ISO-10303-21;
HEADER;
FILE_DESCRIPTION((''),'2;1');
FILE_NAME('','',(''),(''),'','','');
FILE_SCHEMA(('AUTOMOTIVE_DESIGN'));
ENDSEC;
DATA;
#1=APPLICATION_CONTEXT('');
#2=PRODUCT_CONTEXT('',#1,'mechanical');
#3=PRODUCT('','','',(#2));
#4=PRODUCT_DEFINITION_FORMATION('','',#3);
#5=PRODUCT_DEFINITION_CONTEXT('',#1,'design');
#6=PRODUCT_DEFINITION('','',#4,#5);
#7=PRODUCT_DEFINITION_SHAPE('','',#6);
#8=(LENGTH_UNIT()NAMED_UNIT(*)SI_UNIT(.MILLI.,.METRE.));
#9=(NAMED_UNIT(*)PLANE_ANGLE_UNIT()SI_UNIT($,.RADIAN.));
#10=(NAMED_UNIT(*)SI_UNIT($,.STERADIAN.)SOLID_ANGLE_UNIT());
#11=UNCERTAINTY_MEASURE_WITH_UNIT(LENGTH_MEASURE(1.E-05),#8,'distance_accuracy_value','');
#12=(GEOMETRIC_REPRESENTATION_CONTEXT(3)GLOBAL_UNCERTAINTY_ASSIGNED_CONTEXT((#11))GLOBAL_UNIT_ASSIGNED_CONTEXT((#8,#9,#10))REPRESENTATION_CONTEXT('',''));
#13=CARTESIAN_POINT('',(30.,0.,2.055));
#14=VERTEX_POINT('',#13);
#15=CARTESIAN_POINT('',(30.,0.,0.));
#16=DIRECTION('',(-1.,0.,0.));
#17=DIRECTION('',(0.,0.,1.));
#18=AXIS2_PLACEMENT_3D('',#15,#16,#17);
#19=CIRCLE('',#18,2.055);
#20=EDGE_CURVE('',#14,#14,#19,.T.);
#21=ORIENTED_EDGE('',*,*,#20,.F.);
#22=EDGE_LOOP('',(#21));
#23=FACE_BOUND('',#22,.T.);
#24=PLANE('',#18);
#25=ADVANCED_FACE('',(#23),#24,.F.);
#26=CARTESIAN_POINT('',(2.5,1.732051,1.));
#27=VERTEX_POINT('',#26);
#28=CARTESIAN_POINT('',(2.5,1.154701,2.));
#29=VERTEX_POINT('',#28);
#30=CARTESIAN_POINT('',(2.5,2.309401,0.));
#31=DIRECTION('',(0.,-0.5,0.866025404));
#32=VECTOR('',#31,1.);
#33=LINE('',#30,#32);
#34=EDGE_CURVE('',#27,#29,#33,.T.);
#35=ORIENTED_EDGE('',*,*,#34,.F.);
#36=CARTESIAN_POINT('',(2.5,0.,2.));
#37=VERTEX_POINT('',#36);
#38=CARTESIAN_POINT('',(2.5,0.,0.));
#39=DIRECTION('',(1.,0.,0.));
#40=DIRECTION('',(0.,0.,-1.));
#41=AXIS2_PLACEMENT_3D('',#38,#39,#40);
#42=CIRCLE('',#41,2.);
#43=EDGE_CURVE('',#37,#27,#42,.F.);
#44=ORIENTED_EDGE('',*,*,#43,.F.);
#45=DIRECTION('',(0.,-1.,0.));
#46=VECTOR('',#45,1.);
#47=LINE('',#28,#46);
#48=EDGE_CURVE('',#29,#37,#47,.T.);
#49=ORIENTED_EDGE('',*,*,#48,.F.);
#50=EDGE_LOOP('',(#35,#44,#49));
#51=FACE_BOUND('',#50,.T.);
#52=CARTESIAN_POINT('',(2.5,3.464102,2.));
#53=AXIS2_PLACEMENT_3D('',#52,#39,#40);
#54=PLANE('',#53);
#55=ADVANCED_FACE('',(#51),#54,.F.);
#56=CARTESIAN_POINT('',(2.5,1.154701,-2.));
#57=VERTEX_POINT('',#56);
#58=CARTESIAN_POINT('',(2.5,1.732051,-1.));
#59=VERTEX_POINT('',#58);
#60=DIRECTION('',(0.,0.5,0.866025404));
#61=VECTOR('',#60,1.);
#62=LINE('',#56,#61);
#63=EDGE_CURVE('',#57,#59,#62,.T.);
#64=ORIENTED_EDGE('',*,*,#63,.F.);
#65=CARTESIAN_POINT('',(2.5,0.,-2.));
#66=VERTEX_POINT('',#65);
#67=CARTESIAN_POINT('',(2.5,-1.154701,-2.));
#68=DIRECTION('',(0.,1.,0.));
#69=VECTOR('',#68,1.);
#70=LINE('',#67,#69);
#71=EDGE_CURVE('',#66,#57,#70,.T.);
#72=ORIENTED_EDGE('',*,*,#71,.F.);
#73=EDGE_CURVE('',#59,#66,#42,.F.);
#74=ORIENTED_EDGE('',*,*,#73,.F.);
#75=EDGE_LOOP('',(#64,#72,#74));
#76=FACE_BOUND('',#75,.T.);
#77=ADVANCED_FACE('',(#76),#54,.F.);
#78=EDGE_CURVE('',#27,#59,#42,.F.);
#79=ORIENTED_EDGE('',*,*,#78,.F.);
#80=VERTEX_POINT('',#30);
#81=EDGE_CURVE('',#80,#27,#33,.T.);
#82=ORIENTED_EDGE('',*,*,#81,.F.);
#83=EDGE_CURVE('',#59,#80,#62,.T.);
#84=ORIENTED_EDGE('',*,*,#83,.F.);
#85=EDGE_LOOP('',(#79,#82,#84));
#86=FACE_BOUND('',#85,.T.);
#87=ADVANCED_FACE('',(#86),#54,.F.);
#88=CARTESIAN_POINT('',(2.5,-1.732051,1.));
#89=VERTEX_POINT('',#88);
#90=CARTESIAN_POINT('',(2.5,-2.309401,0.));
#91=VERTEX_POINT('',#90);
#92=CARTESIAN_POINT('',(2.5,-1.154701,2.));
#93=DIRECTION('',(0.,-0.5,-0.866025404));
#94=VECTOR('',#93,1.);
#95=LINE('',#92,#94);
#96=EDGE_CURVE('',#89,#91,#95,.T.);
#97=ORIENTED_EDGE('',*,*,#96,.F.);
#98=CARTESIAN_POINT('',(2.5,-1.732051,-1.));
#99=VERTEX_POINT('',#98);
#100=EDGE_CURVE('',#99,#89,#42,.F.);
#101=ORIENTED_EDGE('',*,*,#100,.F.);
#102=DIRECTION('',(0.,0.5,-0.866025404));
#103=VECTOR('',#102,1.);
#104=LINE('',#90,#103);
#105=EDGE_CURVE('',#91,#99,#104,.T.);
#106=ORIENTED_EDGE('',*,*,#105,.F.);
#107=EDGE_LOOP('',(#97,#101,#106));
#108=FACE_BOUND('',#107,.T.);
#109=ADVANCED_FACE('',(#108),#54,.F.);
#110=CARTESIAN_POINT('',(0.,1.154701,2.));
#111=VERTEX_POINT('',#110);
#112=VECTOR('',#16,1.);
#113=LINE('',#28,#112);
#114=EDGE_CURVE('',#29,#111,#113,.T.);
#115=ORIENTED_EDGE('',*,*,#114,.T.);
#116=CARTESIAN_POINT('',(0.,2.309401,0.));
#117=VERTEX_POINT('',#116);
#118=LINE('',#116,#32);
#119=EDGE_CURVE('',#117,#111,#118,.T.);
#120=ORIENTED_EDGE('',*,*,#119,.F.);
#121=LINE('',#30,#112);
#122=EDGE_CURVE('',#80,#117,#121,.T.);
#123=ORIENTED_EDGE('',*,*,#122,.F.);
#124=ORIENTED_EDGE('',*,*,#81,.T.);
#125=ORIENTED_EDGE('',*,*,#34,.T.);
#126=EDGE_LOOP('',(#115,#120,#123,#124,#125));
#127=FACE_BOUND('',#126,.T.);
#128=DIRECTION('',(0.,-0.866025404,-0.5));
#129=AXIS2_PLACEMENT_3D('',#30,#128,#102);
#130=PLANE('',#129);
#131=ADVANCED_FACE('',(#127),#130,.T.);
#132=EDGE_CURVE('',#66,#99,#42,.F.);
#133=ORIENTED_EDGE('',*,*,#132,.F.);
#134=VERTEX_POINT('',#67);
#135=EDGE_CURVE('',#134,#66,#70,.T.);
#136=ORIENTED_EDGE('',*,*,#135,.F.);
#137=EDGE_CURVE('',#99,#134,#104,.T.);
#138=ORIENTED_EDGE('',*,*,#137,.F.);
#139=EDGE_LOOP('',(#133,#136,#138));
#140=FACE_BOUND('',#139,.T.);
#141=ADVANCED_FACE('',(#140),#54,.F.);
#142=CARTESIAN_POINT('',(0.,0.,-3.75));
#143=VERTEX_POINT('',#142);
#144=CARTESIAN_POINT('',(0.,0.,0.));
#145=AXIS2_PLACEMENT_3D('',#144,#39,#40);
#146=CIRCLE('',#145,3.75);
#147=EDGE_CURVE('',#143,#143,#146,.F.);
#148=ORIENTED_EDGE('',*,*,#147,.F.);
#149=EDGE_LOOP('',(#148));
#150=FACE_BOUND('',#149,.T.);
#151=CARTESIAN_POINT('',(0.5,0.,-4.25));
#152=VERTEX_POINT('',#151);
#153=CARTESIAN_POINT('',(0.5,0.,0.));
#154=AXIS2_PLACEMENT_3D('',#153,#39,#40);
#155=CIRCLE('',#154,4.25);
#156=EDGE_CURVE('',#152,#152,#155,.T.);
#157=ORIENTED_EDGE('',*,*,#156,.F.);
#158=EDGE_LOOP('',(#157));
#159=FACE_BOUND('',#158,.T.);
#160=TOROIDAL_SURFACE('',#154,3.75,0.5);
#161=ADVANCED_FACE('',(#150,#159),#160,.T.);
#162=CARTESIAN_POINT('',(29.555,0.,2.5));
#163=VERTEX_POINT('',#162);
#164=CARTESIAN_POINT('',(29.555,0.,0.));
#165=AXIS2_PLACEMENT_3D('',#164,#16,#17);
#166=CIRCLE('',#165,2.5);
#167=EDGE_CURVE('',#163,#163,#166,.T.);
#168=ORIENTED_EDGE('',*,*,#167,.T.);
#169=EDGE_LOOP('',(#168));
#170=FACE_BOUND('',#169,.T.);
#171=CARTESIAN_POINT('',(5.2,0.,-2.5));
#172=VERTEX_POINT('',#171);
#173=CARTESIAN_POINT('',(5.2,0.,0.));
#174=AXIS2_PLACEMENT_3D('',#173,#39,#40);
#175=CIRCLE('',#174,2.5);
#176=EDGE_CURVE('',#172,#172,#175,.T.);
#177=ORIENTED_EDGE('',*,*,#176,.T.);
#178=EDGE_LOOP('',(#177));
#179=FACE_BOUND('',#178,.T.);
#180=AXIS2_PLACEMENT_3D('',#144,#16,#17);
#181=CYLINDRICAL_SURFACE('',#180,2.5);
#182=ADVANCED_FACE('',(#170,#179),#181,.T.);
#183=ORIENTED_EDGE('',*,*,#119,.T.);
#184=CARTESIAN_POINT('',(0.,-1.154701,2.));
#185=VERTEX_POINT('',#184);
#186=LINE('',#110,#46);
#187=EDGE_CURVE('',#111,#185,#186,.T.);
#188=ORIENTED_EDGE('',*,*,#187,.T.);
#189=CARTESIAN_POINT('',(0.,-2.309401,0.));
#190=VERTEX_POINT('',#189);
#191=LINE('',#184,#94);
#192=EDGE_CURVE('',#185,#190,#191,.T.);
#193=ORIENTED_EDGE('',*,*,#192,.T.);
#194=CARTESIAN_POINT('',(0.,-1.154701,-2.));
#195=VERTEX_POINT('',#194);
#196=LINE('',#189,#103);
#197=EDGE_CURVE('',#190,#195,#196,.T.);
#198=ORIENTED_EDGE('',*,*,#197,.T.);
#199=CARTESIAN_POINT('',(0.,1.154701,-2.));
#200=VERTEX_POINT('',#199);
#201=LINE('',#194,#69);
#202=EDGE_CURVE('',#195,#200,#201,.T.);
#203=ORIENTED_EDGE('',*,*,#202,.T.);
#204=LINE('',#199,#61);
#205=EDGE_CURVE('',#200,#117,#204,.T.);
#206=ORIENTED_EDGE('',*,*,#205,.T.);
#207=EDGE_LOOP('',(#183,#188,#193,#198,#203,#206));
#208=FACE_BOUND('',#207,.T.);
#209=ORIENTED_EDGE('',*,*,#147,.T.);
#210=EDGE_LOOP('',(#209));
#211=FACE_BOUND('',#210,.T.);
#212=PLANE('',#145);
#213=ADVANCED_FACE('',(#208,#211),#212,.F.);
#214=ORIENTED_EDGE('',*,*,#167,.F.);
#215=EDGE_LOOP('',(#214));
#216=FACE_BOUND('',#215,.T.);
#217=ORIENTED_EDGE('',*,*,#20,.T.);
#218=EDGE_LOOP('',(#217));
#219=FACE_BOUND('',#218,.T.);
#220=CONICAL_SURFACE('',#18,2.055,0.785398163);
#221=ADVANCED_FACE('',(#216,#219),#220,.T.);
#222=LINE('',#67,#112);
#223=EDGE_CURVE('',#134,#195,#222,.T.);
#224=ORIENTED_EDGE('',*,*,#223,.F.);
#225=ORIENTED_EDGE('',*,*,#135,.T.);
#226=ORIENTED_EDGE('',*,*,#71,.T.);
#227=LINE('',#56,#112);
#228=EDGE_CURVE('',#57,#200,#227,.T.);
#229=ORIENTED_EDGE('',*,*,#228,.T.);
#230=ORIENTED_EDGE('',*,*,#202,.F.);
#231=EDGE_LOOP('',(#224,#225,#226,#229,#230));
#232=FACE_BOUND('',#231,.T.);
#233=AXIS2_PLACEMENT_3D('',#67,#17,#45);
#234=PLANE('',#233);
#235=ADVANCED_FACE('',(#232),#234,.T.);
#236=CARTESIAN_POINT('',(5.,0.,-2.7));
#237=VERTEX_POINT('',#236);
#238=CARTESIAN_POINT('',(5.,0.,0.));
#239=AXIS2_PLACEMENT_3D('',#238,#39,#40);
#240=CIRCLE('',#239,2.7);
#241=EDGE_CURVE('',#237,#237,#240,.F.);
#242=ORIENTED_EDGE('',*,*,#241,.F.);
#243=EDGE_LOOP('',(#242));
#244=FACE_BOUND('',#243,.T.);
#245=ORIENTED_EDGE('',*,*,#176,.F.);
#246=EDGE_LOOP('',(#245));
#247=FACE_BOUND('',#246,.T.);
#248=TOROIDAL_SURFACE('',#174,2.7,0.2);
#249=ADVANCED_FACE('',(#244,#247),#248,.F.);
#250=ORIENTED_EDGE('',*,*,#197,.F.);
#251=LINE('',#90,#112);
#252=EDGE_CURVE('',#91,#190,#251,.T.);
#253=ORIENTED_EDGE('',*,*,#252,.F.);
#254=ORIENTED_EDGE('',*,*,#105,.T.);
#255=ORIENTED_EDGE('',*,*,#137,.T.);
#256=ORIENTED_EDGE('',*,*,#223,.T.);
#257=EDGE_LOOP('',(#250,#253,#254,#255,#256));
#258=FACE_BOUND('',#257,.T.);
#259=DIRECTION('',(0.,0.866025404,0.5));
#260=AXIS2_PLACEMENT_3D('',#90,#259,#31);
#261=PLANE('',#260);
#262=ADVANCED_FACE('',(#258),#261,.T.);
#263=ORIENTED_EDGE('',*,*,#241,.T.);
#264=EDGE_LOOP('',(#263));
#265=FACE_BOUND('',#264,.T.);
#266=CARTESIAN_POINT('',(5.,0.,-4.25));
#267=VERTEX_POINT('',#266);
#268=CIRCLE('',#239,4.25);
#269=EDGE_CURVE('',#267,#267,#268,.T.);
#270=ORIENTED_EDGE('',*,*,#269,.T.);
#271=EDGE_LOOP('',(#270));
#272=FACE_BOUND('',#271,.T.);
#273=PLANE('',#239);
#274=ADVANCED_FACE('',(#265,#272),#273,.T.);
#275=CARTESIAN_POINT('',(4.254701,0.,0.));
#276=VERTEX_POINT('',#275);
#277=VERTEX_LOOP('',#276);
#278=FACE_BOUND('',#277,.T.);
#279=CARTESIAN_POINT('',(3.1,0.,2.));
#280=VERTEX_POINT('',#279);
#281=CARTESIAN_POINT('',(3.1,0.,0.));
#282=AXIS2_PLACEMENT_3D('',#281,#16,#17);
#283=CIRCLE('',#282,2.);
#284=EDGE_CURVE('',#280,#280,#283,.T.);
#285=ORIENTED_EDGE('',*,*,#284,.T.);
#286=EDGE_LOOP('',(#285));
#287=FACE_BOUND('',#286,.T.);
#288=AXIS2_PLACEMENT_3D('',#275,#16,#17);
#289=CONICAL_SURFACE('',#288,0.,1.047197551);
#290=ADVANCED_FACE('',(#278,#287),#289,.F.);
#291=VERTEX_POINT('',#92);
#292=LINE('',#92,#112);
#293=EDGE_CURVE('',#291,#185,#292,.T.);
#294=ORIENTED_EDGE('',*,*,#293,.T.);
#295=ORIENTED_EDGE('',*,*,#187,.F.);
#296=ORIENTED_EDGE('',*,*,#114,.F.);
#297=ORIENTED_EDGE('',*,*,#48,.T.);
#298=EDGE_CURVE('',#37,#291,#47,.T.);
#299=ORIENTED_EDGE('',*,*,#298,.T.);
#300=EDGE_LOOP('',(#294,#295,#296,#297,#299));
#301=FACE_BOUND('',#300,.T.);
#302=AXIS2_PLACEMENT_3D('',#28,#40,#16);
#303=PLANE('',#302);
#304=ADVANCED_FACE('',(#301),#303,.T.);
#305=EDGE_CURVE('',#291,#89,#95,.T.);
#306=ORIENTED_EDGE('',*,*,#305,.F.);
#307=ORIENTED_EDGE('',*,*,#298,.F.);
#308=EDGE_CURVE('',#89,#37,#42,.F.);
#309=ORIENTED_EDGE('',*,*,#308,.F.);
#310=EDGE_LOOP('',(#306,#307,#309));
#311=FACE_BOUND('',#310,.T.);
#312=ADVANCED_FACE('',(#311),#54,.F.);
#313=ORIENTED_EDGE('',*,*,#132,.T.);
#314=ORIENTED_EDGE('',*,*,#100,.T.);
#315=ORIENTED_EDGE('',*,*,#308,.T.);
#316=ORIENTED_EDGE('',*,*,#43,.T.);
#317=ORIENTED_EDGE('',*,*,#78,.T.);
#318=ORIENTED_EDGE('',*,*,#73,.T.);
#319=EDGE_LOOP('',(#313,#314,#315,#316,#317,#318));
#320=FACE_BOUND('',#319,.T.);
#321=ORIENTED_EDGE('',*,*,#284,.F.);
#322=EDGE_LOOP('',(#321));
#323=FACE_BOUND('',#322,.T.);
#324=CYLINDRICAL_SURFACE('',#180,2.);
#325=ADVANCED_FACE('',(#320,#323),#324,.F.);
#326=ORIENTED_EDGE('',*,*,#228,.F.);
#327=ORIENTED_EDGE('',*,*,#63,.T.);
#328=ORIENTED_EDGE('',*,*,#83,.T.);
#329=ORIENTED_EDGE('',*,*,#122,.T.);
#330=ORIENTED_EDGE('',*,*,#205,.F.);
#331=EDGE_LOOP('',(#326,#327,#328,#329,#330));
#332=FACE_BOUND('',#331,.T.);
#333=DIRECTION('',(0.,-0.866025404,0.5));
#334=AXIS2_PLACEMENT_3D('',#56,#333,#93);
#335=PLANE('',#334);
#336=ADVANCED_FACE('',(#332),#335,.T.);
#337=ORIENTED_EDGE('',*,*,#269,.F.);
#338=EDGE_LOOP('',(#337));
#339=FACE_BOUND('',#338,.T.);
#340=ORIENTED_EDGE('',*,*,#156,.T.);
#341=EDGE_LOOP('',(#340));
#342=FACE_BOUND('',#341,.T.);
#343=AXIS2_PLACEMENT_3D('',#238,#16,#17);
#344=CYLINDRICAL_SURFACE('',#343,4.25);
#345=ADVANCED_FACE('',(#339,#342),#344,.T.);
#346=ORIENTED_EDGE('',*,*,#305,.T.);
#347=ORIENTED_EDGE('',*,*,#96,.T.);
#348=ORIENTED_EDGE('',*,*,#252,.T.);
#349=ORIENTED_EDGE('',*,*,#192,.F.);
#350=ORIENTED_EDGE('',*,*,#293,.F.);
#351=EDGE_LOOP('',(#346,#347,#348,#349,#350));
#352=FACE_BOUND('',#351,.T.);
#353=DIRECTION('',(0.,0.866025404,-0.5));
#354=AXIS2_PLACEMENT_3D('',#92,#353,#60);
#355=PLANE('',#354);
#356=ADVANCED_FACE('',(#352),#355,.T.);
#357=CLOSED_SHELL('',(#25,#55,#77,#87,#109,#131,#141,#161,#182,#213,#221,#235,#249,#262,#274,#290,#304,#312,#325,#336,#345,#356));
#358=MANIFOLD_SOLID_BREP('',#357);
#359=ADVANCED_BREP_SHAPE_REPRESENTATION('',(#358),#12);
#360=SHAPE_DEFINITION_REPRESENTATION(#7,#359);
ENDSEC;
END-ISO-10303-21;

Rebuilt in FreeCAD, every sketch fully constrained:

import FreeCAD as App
import Part
import Sketcher
Q = App.Units.Quantity


def edges_at(feature, points):
    """Names of the edges that pass closest to the given points."""
    edges = feature.Shape.Edges
    near = lambda p: min(range(len(edges)), key=lambda i: edges[i].distToShape(Part.Vertex(*p))[0])
    return sorted({f"Edge{near(p) + 1}" for p in points})

doc = App.newDocument("Part")
body = doc.addObject("PartDesign::Body", "Body")

# Sketch on YZ plane
sketch1 = body.newObject("Sketcher::SketchObject", "Sketch")
sketch1.AttachmentSupport = (doc.getObject("YZ_Plane"), [""])
sketch1.MapMode = "FlatFace"
sketch1.addGeometry(Part.Circle(App.Vector(0, 0, 0), App.Vector(0, 0, 1), 4.2), False)
sketch1.addConstraint([
    Sketcher.Constraint("Coincident", 0, 3, -1, 1),
    Sketcher.Constraint("Diameter", 0, Q("8.5 mm")),
])
pad1 = body.newObject("PartDesign::Pad", "Pad")
pad1.Profile = sketch1
pad1.Length = 5

# Sketch on XY plane
sketch2 = body.newObject("Sketcher::SketchObject", "Sketch001")
sketch2.AttachmentSupport = (doc.getObject("XY_Plane"), [""])
sketch2.MapMode = "FlatFace"
sketch2.addGeometry([
    Part.LineSegment(App.Vector(0, 0, 0), App.Vector(30, 0, 0)),  # 0
    Part.LineSegment(App.Vector(30, 0, 0), App.Vector(30, 2.1, 0)),  # 1
    Part.LineSegment(App.Vector(30, 2.1, 0), App.Vector(29.6, 2.5, 0)),  # 2
    Part.LineSegment(App.Vector(29.6, 2.5, 0), App.Vector(0, 2.5, 0)),  # 3
    Part.LineSegment(App.Vector(0, 2.5, 0), App.Vector(0, 0, 0)),  # 4
], False)
sketch2.addConstraint([
    Sketcher.Constraint("Coincident", 0, 2, 1, 1),
    Sketcher.Constraint("Coincident", 1, 2, 2, 1),
    Sketcher.Constraint("Coincident", 2, 2, 3, 1),
    Sketcher.Constraint("Coincident", 3, 2, 4, 1),
    Sketcher.Constraint("Coincident", 4, 2, 0, 1),
    Sketcher.Constraint("Horizontal", 0),
    Sketcher.Constraint("Vertical", 1),
    Sketcher.Constraint("Horizontal", 3),
    Sketcher.Constraint("Vertical", 4),
    Sketcher.Constraint("Coincident", 4, 2, -1, 1),
    Sketcher.Constraint("DistanceX", 0, 1, 0, 2, Q("30 mm")),
    Sketcher.Constraint("Angle", 2, Q("135 deg")),
    Sketcher.Constraint("DistanceY", 4, 2, 4, 1, Q("2.5 mm")),
    Sketcher.Constraint("DistanceX", 3, 2, 3, 1, Q("29.555 mm")),
])
revolution = body.newObject("PartDesign::Revolution", "Revolution")
revolution.Profile = sketch2
revolution.ReferenceAxis = (sketch2, ["H_Axis"])
revolution.Angle = 360

# Sketch on YZ plane
sketch3 = body.newObject("Sketcher::SketchObject", "Sketch002")
sketch3.AttachmentSupport = (doc.getObject("YZ_Plane"), [""])
sketch3.MapMode = "FlatFace"
sketch3.addGeometry([
    Part.LineSegment(App.Vector(2.3, 0, 0), App.Vector(1.2, 2, 0)),  # 0
    Part.LineSegment(App.Vector(1.2, 2, 0), App.Vector(-1.2, 2, 0)),  # 1
    Part.LineSegment(App.Vector(-1.2, 2, 0), App.Vector(-2.3, 0, 0)),  # 2
    Part.LineSegment(App.Vector(-2.3, 0, 0), App.Vector(-1.2, -2, 0)),  # 3
    Part.LineSegment(App.Vector(-1.2, -2, 0), App.Vector(1.2, -2, 0)),  # 4
    Part.LineSegment(App.Vector(1.2, -2, 0), App.Vector(2.3, 0, 0)),  # 5
], False)
sketch3.addConstraint([
    Sketcher.Constraint("Coincident", 0, 2, 1, 1),
    Sketcher.Constraint("Coincident", 1, 2, 2, 1),
    Sketcher.Constraint("Coincident", 2, 2, 3, 1),
    Sketcher.Constraint("Coincident", 3, 2, 4, 1),
    Sketcher.Constraint("Coincident", 4, 2, 5, 1),
    Sketcher.Constraint("Coincident", 5, 2, 0, 1),
    Sketcher.Constraint("Horizontal", 1),
    Sketcher.Constraint("Horizontal", 4),
    Sketcher.Constraint("Symmetric", 0, 2, 3, 2, -1, 1),
    Sketcher.Constraint("Symmetric", 2, 2, 5, 2, -1, 1),
    Sketcher.Constraint("PointOnObject", 2, 2, -1),
    Sketcher.Constraint("Parallel", 2, 5),
    Sketcher.Constraint("Vertical", 1, 2, 3, 2),
    Sketcher.Constraint("Angle", 0, Q("120 deg")),
    Sketcher.Constraint("DistanceY", -1, 1, 0, 2, Q("2 mm")),
    Sketcher.Constraint("DistanceX", 1, 2, 1, 1, Q("2.309401 mm")),
])
pocket1 = body.newObject("PartDesign::Pocket", "Pocket")
pocket1.Profile = sketch3
pocket1.Length = 2.5
pocket1.Reversed = True

# Sketch on XY plane
sketch4 = body.newObject("Sketcher::SketchObject", "Sketch003")
sketch4.AttachmentSupport = (doc.getObject("XY_Plane"), [""])
sketch4.MapMode = "FlatFace"
sketch4.addGeometry([
    Part.LineSegment(App.Vector(3.1, 2, 0), App.Vector(0, 2, 0)),
    Part.LineSegment(App.Vector(0, 2, 0), App.Vector(0, 0, 0)),
    Part.LineSegment(App.Vector(0, 0, 0), App.Vector(4.3, 0, 0)),
    Part.LineSegment(App.Vector(4.3, 0, 0), App.Vector(3.1, 2, 0)),
], False)
sketch4.addConstraint([
    Sketcher.Constraint("Coincident", 0, 2, 1, 1),
    Sketcher.Constraint("Coincident", 1, 2, 2, 1),
    Sketcher.Constraint("Coincident", 2, 2, 3, 1),
    Sketcher.Constraint("Coincident", 3, 2, 0, 1),
    Sketcher.Constraint("Horizontal", 0),
    Sketcher.Constraint("Vertical", 1),
    Sketcher.Constraint("Horizontal", 2),
    Sketcher.Constraint("Coincident", 1, 2, -1, 1),
    Sketcher.Constraint("DistanceY", 1, 2, 1, 1, Q("2 mm")),
    Sketcher.Constraint("Angle", 3, Q("120 deg")),
    Sketcher.Constraint("DistanceX", 0, 2, 0, 1, Q("3.1 mm")),
])
groove = body.newObject("PartDesign::Groove", "Groove")
groove.Profile = sketch4
groove.ReferenceAxis = (sketch4, ["H_Axis"])
groove.Angle = 360
doc.recompute()

fillet = body.newObject("PartDesign::Fillet", "Fillet")
fillet.Base = (groove, edges_at(groove, [(5, 0, -2.5)]))
fillet.Radius = 0.2
doc.recompute()

fillet2 = body.newObject("PartDesign::Fillet", "Fillet001")
fillet2.Base = (fillet, edges_at(fillet, [(0, 0, 4.25)]))
fillet2.Radius = 0.5

doc.recompute()
